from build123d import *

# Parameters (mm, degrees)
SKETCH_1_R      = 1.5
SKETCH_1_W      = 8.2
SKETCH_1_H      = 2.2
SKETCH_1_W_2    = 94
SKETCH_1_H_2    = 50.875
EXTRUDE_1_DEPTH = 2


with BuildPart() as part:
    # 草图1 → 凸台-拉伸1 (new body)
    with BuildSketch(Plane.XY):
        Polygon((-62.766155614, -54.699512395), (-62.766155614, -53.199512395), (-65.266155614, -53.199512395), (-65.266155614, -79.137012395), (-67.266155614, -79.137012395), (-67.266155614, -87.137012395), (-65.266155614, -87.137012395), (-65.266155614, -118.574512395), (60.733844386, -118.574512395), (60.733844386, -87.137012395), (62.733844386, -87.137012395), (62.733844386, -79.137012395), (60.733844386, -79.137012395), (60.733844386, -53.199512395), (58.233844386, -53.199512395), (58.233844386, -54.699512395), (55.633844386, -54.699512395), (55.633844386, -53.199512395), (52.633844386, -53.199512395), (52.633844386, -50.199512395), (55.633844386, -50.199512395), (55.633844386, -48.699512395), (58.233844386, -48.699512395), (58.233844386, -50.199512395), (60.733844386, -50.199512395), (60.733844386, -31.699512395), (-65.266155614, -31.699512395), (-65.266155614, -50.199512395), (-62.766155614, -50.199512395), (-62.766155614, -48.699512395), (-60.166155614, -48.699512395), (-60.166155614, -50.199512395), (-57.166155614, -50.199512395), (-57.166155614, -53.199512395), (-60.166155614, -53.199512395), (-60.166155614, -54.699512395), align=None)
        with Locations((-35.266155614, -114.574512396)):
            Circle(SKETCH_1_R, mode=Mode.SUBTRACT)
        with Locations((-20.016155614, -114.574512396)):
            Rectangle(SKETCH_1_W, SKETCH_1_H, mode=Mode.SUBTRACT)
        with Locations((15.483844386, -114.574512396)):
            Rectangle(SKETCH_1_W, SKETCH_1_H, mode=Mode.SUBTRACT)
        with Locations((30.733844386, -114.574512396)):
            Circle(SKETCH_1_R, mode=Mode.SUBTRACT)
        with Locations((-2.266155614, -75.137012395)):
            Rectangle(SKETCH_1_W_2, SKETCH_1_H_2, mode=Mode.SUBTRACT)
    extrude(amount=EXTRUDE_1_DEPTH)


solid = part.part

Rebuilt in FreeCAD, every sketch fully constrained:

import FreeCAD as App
import Part
import Sketcher

V = App.Vector
Q = App.Units.Quantity


def add_polygon(sketch, points):
    """Adds a closed chain of lines whose ends are joined by coincident constraints."""
    first, n = sketch.GeometryCount, len(points)
    for a, b in zip(points, points[1:] + points[:1]):
        sketch.addGeometry(Part.LineSegment(App.Vector(*a, 0), App.Vector(*b, 0)), False)
    for i in range(n):
        sketch.addConstraint(Sketcher.Constraint("Coincident", first + i, 2, first + (i + 1) % n, 1))

doc = App.newDocument("Part")
body = doc.addObject("PartDesign::Body", "Body")

sketch1 = doc.addObject("Sketcher::SketchObject", "Sketch")
body.addObject(sketch1)
sketch1.AttachmentSupport = (doc.XY_Plane, [""])
sketch1.MapMode = "FlatFace"
add_polygon(sketch1, [(-62.8, -54.7), (-62.8, -53.2), (-65.3, -53.2), (-65.3, -79.1), (-67.3, -79.1), (-67.3, -87.1), (-65.3, -87.1), (-65.3, -118.6), (60.7, -118.6), (60.7, -87.1), (62.7, -87.1), (62.7, -79.1), (60.7, -79.1), (60.7, -53.2), (58.2, -53.2), (58.2, -54.7), (55.6, -54.7), (55.6, -53.2), (52.6, -53.2), (52.6, -50.2), (55.6, -50.2), (55.6, -48.7), (58.2, -48.7), (58.2, -50.2), (60.7, -50.2), (60.7, -31.7), (-65.3, -31.7), (-65.3, -50.2), (-62.8, -50.2), (-62.8, -48.7), (-60.2, -48.7), (-60.2, -50.2), (-57.2, -50.2), (-57.2, -53.2), (-60.2, -53.2), (-60.2, -54.7)])
sketch1.addGeometry(Part.Circle(V(-35.3, -114.6, 0), V(0, 0, 1), 1.5), False)
add_polygon(sketch1, [(-15.9, -115.7), (-24.1, -115.7), (-24.1, -113.5), (-15.9, -113.5)])
add_polygon(sketch1, [(19.6, -115.7), (11.4, -115.7), (11.4, -113.5), (19.6, -113.5)])
sketch1.addGeometry(Part.Circle(V(30.7, -114.6, 0), V(0, 0, 1), 1.5), False)
add_polygon(sketch1, [(44.7, -100.6), (-49.3, -100.6), (-49.3, -49.7), (44.7, -49.7)])
sketch1.addConstraint([
    Sketcher.Constraint("Vertical", 0),
    Sketcher.Constraint("Horizontal", 1),
    Sketcher.Constraint("Vertical", 2),
    Sketcher.Constraint("Horizontal", 3),
    Sketcher.Constraint("Vertical", 4),
    Sketcher.Constraint("Horizontal", 5),
    Sketcher.Constraint("Vertical", 6),
    Sketcher.Constraint("Horizontal", 7),
    Sketcher.Constraint("Vertical", 8),
    Sketcher.Constraint("Horizontal", 9),
    Sketcher.Constraint("Vertical", 10),
    Sketcher.Constraint("Horizontal", 11),
    Sketcher.Constraint("Vertical", 12),
    Sketcher.Constraint("Horizontal", 13),
    Sketcher.Constraint("Vertical", 14),
    Sketcher.Constraint("Horizontal", 15),
    Sketcher.Constraint("Vertical", 16),
    Sketcher.Constraint("Horizontal", 17),
    Sketcher.Constraint("Vertical", 18),
    Sketcher.Constraint("Horizontal", 19),
    Sketcher.Constraint("Vertical", 20),
    Sketcher.Constraint("Horizontal", 21),
    Sketcher.Constraint("Vertical", 22),
    Sketcher.Constraint("Horizontal", 23),
    Sketcher.Constraint("Vertical", 24),
    Sketcher.Constraint("Horizontal", 25),
    Sketcher.Constraint("Vertical", 26),
    Sketcher.Constraint("Horizontal", 27),
    Sketcher.Constraint("Vertical", 28),
    Sketcher.Constraint("Horizontal", 29),
    Sketcher.Constraint("Vertical", 30),
    Sketcher.Constraint("Horizontal", 31),
    Sketcher.Constraint("Vertical", 32),
    Sketcher.Constraint("Horizontal", 33),
    Sketcher.Constraint("Vertical", 34),
    Sketcher.Constraint("Horizontal", 35),
    Sketcher.Constraint("Horizontal", 37),
    Sketcher.Constraint("Vertical", 38),
    Sketcher.Constraint("Horizontal", 39),
    Sketcher.Constraint("Vertical", 40),
    Sketcher.Constraint("Horizontal", 41),
    Sketcher.Constraint("Vertical", 42),
    Sketcher.Constraint("Horizontal", 43),
    Sketcher.Constraint("Vertical", 44),
    Sketcher.Constraint("Horizontal", 46),
    Sketcher.Constraint("Vertical", 47),
    Sketcher.Constraint("Horizontal", 48),
    Sketcher.Constraint("Vertical", 49),
    Sketcher.Constraint("Equal", 36, 45),
    Sketcher.Constraint("Horizontal", 36, 3, 45, 3),
    Sketcher.Constraint("Horizontal", 5, 2, 8, 2),
    Sketcher.Constraint("Horizontal", 3, 2, 10, 2),
    Sketcher.Constraint("Horizontal", 1, 2, 12, 2),
    Sketcher.Constraint("Horizontal", 13, 2, 16, 2),
    Sketcher.Constraint("Horizontal", 19, 2, 22, 2),
    Sketcher.Constraint("Horizontal", 23, 2, 26, 2),
    Sketcher.Constraint("Horizontal", 21, 2, 28, 2),
    Sketcher.Constraint("Horizontal", 27, 2, 30, 2),
    Sketcher.Constraint("Horizontal", 17, 2, 32, 2),
    Sketcher.Constraint("Horizontal", 15, 2, 34, 2),
    Sketcher.Constraint("Horizontal", 40, 2, 41, 2),
    Sketcher.Constraint("Horizontal", 39, 2, 42, 2),
    Sketcher.Constraint("Vertical", 2, 2, 5, 2),
    Sketcher.Constraint("Vertical", 8, 2, 11, 2),
    Sketcher.Constraint("Vertical", 16, 2, 19, 2),
    Sketcher.Constraint("Vertical", 14, 2, 21, 2),
    Sketcher.Constraint("Vertical", 12, 2, 23, 2),
    Sketcher.Constraint("Vertical", 6, 2, 25, 2),
    Sketcher.Constraint("Vertical", 0, 2, 27, 2),
    Sketcher.Constraint("Vertical", 30, 2, 33, 2),
    Sketcher.Constraint("Equal", 5, 9),
    Sketcher.Constraint("Equal", 1, 13),
    Sketcher.Constraint("Equal", 21, 29),
    Sketcher.Constraint("Equal", 19, 31),
    Sketcher.Constraint("Equal", 39, 41),
    Sketcher.Constraint("Equal", 33, 18),
    Sketcher.Constraint("Equal", 16, 20),
    Sketcher.Constraint("Diameter", 36, Q("3 mm")),
    Sketcher.Constraint("DistanceX", 3, 2, 3, 1, Q("2 mm")),
    Sketcher.Constraint("DistanceX", 7, 1, 7, 2, Q("126 mm")),
    Sketcher.Constraint("DistanceX", 17, 2, 17, 1, Q("3 mm")),
    Sketcher.Constraint("DistanceX", 46, 2, 46, 1, Q("94 mm")),
    Sketcher.Constraint("DistanceY", 4, 2, 4, 1, Q("8 mm")),
    Sketcher.Constraint("DistanceX", 1, 2, 1, 1, Q("2.5 mm")),
    Sketcher.Constraint("DistanceX", 15, 2, 15, 1, Q("2.6 mm")),
    Sketcher.Constraint("DistanceX", 37, 2, 37, 1, Q("8.2 mm")),
    Sketcher.Constraint("DistanceY", 0, 1, 0, 2, Q("1.5 mm")),
    Sketcher.Constraint("DistanceY", 24, 1, 24, 2, Q("18.5 mm")),
    Sketcher.Constraint("DistanceY", 38, 1, 38, 2, Q("2.2 mm")),
    Sketcher.Constraint("DistanceX", 36, 3, 45, 3, Q("66 mm")),
    Sketcher.Constraint("DistanceX", 1, 2, 36, 3, Q("30 mm")),
    Sketcher.Constraint("DistanceY", 6, 2, 36, 3, Q("4 mm")),
    Sketcher.Constraint("DistanceX", 46, 2, 36, 3, Q("14 mm")),
    Sketcher.Constraint("DistanceY", 36, 3, 46, 2, Q("14 mm")),
    Sketcher.Constraint("DistanceY", 47, 2, 29, 2, Q("1 mm")),
    Sketcher.Constraint("DistanceY", 37, 2, 36, 3, Q("1.1 mm")),
    Sketcher.Constraint("DistanceX", 40, 2, 41, 2, Q("27.3 mm")),
    Sketcher.Constraint("DistanceY", 47, 1, 47, 2, Q("50.875 mm")),
    Sketcher.Constraint("DistanceX", 36, 3, 37, 2, Q("11.15 mm")),
    Sketcher.Constraint("DistanceY", 2, 2, 2, 1, Q("25.9375 mm")),
    Sketcher.Constraint("DistanceX", 36, 3, -1, 1, Q("35.266156 mm")),
    Sketcher.Constraint("DistanceY", 36, 3, -1, 1, Q("114.574512 mm")),
])
pad1 = doc.addObject("PartDesign::Pad", "Pad")
body.addObject(pad1)
pad1.Profile = sketch1
pad1.Length = 2

doc.recompute()
